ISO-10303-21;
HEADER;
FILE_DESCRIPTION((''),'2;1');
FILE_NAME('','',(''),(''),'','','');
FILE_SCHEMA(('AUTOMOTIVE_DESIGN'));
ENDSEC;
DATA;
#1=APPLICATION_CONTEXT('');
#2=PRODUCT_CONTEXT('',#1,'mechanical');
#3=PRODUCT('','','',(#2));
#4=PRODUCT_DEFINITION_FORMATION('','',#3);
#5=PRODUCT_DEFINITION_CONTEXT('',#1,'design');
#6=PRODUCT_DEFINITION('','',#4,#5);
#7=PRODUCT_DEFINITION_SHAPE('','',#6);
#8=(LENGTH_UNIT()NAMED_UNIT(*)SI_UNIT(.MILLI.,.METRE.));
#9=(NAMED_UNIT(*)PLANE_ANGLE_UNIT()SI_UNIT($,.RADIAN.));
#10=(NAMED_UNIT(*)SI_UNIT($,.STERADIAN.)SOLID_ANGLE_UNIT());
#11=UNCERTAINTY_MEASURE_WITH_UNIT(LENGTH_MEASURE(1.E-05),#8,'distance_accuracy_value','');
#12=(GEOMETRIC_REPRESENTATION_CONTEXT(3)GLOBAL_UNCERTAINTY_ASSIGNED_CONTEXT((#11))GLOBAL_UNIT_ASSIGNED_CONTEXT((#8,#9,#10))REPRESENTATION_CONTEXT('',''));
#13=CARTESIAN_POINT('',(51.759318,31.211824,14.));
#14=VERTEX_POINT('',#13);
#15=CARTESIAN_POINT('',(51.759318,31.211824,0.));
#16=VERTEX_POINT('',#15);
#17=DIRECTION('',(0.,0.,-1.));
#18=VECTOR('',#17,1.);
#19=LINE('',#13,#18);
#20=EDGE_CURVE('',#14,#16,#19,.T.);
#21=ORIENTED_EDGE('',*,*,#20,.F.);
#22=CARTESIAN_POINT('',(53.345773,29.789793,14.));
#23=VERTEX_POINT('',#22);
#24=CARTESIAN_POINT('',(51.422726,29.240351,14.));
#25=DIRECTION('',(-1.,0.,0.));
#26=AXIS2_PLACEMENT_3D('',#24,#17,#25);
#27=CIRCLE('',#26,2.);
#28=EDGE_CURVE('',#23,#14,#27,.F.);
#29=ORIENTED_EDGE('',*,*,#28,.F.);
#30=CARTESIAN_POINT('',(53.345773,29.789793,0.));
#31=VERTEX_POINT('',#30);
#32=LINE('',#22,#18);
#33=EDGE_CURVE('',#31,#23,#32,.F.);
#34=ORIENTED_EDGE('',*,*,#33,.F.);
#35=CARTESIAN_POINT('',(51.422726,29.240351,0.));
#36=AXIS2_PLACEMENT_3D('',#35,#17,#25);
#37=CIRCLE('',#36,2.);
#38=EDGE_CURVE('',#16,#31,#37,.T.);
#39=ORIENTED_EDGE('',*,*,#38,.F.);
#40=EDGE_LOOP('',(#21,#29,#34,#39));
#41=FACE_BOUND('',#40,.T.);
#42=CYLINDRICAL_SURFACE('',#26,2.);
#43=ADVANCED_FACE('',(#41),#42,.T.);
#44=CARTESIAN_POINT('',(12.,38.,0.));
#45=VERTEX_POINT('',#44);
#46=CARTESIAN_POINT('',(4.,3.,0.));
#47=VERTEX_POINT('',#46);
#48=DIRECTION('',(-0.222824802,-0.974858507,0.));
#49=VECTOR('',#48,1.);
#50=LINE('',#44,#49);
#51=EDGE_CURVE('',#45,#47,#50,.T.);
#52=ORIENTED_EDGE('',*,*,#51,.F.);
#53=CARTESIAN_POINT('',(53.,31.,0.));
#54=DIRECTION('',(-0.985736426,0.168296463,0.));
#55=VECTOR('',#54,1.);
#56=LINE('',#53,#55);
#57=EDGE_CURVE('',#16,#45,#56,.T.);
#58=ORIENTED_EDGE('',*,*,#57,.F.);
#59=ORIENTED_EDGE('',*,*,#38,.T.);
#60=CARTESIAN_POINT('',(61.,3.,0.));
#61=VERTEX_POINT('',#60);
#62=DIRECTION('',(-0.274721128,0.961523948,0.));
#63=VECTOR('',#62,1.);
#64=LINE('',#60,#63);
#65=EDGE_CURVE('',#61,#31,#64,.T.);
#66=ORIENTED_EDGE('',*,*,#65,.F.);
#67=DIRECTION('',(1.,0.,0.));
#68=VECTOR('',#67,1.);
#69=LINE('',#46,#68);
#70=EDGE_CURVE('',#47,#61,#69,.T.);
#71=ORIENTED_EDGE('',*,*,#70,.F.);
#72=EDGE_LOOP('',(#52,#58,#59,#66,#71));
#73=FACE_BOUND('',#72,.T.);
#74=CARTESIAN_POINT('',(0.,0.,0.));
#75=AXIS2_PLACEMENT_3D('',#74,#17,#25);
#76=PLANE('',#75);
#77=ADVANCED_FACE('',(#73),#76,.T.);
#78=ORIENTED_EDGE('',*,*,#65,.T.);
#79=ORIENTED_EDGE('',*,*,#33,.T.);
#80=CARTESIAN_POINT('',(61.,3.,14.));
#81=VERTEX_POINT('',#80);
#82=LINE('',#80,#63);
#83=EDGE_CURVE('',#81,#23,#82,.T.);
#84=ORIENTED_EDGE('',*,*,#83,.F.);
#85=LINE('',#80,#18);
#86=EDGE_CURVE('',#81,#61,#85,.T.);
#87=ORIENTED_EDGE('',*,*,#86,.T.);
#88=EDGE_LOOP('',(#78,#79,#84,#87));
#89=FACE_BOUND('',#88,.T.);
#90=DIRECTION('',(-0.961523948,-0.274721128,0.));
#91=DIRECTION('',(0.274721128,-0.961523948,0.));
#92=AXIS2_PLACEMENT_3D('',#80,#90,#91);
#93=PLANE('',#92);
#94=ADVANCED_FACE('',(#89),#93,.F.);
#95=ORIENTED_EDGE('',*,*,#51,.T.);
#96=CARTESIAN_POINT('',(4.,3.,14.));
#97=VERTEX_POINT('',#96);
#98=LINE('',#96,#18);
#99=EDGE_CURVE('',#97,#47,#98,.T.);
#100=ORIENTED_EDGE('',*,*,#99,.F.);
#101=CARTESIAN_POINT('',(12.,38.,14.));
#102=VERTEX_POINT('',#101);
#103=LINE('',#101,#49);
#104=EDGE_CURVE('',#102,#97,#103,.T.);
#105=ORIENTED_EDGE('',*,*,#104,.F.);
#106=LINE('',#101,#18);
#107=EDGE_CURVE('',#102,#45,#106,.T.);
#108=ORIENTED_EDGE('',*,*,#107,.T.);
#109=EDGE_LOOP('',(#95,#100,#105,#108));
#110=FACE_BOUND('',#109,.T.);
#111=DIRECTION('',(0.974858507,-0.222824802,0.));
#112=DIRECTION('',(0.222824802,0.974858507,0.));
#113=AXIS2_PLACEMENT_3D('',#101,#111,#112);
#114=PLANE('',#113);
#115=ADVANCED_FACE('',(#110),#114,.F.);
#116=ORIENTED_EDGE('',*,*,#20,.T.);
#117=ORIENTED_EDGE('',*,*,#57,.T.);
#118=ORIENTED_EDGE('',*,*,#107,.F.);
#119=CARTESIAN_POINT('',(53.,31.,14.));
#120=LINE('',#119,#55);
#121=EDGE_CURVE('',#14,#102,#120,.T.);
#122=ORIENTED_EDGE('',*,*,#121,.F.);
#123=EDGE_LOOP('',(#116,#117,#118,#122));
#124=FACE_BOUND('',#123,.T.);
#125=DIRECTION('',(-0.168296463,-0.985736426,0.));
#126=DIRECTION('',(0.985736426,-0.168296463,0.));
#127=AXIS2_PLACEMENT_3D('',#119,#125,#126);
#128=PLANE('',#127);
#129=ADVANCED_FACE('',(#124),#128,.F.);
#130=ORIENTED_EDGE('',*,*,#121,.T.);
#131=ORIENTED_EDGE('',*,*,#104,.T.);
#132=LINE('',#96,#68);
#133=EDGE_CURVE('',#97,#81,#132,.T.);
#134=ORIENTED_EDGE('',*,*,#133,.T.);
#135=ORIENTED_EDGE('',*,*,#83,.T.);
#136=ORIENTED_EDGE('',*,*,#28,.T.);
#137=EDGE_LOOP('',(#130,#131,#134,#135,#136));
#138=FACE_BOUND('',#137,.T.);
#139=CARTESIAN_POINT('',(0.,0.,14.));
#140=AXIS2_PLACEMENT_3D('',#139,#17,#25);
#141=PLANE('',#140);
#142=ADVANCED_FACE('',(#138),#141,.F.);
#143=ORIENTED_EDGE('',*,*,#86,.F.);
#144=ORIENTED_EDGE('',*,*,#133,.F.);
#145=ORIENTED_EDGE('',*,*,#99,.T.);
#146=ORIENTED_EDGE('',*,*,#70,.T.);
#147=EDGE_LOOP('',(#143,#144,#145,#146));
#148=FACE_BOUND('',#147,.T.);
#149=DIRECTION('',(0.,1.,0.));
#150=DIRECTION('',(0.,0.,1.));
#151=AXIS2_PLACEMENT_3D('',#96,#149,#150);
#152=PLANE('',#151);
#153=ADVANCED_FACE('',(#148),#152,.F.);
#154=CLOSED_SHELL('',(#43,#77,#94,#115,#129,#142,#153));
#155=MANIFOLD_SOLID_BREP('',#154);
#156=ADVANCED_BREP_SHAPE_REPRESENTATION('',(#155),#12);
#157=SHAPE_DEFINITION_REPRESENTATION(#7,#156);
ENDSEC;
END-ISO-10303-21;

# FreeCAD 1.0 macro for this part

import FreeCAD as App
import Part
import Sketcher
from FreeCAD import Vector
Q = App.Units.Quantity


def edges_at(feature, points):
    """Names of the edges that pass closest to the given points."""
    edges = feature.Shape.Edges
    near = lambda p: min(range(len(edges)), key=lambda i: edges[i].distToShape(Part.Vertex(*p))[0])
    return sorted({f"Edge{near(p) + 1}" for p in points})

doc = App.newDocument("Part")
body = doc.addObject("PartDesign::Body", "Body")

# Sketch on XY plane
sketch1 = body.newObject("Sketcher::SketchObject", "Sketch")
sketch1.AttachmentSupport = (doc.getObject("XY_Plane"), [""])
sketch1.MapMode = "FlatFace"
sketch1.addGeometry([
    Part.LineSegment(Vector(4, 3, 0), Vector(61, 3, 0)),
    Part.LineSegment(Vector(61, 3, 0), Vector(53, 31, 0)),
    Part.LineSegment(Vector(53, 31, 0), Vector(12, 38, 0)),
    Part.LineSegment(Vector(12, 38, 0), Vector(4, 3, 0)),
], False)
sketch1.addConstraint([
    Sketcher.Constraint("Coincident", 0, 2, 1, 1),
    Sketcher.Constraint("Coincident", 1, 2, 2, 1),
    Sketcher.Constraint("Coincident", 2, 2, 3, 1),
    Sketcher.Constraint("Coincident", 3, 2, 0, 1),
    Sketcher.Constraint("Horizontal", 0),
    Sketcher.Constraint("DistanceX", 0, 1, 0, 2, Q("57 mm")),
    Sketcher.Constraint("DistanceX", -1, 1, 0, 2, Q("61 mm")),
    Sketcher.Constraint("DistanceY", -1, 1, 0, 2, Q("3 mm")),
    Sketcher.Constraint("DistanceX", -1, 1, 1, 2, Q("53 mm")),
    Sketcher.Constraint("DistanceY", -1, 1, 1, 2, Q("31 mm")),
    Sketcher.Constraint("DistanceX", -1, 1, 2, 2, Q("12 mm")),
    Sketcher.Constraint("DistanceY", -1, 1, 2, 2, Q("38 mm")),
])
pad1 = body.newObject("PartDesign::Pad", "Pad")
pad1.Profile = sketch1
pad1.Length = 14
doc.recompute()

fillet = body.newObject("PartDesign::Fillet", "Fillet")
fillet.Base = (pad1, edges_at(pad1, [(53, 31, 7)]))
fillet.Radius = 2

doc.recompute()
